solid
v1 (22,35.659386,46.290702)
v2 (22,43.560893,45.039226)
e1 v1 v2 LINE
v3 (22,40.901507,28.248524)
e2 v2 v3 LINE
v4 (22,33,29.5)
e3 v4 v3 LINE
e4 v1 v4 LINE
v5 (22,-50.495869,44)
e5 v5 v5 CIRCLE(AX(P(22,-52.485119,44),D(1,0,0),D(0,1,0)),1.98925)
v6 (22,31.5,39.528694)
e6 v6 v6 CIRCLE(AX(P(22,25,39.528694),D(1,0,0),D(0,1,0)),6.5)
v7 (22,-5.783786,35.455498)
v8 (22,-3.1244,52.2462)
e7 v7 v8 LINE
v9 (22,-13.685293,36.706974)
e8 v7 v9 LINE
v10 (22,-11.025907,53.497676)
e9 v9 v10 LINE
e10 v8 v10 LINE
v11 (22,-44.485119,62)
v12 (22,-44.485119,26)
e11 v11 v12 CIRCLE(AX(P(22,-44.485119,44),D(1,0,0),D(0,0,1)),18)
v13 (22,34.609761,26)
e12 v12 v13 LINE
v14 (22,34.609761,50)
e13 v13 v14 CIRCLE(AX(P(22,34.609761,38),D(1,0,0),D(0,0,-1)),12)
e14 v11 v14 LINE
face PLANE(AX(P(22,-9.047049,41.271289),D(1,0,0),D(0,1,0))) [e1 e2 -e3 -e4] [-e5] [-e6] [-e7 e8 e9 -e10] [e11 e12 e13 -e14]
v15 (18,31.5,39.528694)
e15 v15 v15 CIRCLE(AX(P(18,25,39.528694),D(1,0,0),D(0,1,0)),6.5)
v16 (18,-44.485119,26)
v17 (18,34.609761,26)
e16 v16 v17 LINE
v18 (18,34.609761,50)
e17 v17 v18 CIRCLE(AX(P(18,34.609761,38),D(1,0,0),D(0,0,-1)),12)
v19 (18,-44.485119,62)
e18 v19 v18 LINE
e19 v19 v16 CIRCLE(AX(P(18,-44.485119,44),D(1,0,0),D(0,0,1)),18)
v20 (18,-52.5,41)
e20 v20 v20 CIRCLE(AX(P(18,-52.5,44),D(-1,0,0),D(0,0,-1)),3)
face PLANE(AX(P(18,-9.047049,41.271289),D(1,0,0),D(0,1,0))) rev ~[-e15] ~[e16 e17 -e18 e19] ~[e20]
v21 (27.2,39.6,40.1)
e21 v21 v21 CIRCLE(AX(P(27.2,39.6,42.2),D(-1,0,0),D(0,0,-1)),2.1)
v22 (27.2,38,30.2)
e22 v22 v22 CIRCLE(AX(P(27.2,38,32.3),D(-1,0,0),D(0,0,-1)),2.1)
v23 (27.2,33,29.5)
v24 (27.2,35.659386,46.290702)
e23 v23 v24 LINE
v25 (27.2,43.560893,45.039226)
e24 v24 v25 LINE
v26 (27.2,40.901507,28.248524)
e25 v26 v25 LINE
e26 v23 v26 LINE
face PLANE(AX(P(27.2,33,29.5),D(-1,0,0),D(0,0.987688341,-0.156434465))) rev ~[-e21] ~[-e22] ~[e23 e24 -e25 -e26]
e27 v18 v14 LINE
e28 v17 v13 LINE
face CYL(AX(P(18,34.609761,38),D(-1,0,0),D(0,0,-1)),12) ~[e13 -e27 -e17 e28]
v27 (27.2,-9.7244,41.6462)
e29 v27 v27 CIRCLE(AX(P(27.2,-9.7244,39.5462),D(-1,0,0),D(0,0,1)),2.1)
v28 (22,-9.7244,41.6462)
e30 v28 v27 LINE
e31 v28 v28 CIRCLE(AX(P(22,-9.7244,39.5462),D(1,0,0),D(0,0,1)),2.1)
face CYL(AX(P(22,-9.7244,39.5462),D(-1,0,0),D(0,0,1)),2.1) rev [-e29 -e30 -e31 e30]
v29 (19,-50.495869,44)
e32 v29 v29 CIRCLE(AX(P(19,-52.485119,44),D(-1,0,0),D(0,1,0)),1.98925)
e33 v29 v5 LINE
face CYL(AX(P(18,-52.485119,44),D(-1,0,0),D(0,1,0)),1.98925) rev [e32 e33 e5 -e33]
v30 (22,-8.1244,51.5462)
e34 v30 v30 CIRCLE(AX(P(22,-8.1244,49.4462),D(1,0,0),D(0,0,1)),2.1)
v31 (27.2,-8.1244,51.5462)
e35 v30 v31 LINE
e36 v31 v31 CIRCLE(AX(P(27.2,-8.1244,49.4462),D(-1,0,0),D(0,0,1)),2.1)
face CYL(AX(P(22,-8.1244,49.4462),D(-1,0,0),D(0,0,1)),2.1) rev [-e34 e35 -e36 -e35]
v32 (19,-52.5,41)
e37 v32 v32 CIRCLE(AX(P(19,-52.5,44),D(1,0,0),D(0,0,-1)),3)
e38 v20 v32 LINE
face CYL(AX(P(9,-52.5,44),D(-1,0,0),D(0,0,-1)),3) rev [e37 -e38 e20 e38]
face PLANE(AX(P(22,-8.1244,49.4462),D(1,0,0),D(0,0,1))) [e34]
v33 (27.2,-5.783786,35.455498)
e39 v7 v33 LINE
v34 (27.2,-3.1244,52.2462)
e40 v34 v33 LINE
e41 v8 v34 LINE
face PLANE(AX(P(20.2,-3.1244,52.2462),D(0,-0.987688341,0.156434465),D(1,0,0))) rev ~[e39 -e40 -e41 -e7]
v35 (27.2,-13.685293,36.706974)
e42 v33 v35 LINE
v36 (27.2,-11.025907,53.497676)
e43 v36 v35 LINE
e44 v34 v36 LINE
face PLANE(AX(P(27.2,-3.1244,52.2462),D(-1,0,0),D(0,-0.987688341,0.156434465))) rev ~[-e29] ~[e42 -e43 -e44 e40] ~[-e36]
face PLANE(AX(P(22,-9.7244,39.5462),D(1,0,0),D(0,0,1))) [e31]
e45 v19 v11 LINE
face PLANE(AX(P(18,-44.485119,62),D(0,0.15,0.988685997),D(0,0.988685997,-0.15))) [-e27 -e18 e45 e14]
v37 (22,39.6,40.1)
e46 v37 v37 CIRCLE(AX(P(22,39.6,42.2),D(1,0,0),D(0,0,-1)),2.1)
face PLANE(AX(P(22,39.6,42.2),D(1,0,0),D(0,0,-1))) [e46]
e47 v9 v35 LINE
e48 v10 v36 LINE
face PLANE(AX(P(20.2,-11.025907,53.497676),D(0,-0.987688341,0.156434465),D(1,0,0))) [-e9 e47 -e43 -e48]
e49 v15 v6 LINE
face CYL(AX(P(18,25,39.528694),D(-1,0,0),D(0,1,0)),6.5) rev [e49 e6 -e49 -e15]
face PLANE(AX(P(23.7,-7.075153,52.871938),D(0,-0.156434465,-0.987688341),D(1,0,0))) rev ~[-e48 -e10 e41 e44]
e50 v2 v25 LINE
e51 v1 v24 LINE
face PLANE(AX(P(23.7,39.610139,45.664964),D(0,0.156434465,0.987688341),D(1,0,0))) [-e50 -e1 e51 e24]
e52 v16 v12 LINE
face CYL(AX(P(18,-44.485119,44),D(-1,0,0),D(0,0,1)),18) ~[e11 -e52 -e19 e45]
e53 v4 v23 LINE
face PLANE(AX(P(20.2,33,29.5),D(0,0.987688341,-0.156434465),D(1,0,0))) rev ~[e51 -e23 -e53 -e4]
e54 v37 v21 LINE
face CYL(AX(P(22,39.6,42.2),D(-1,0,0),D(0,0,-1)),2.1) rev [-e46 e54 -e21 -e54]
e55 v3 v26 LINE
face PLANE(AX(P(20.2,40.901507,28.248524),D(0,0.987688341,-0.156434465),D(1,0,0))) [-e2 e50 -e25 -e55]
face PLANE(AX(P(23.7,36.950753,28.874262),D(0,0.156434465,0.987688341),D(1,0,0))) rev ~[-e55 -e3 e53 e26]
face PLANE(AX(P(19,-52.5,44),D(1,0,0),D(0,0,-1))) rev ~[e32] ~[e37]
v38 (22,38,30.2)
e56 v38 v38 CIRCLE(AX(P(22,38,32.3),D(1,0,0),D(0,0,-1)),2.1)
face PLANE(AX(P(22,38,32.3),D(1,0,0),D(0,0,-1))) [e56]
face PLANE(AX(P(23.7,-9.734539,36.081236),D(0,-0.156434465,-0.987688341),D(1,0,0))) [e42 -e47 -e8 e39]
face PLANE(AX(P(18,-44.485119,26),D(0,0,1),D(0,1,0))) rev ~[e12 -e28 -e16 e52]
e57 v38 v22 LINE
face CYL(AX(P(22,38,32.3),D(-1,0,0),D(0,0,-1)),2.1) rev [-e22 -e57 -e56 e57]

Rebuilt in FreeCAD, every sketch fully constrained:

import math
import FreeCAD as App
import Part
import Sketcher
from FreeCAD import Vector


def add_polygon(sketch, points):
    """Adds a closed chain of lines whose ends are joined by coincident constraints."""
    first, n = sketch.GeometryCount, len(points)
    for a, b in zip(points, points[1:] + points[:1]):
        sketch.addGeometry(Part.LineSegment(App.Vector(*a, 0), App.Vector(*b, 0)), False)
    for i in range(n):
        sketch.addConstraint(Sketcher.Constraint("Coincident", first + i, 2, first + (i + 1) % n, 1))

doc = App.newDocument("Part")
body = doc.addObject("PartDesign::Body", "Body")

# Sketch on YZ plane
sketch1 = doc.addObject("Sketcher::SketchObject", "Sketch")
body.addObject(sketch1)
sketch1.AttachmentSupport = (doc.YZ_Plane, [""])
sketch1.MapMode = "FlatFace"
sketch1.AttachmentOffset = App.Placement(Vector(0, 0, 9), App.Rotation())
sketch1.addGeometry(Part.Circle(Vector(-52.5, 44, 0), Vector(0, 0, 1), 3), False)
sketch1.addConstraint(Sketcher.Constraint("Diameter", 0, 6.0))
sketch1.addConstraint(Sketcher.Constraint("DistanceY", -1, 1, 0, 3, 44.0))
sketch1.addConstraint(Sketcher.Constraint("DistanceX", 0, 3, -1, 1, 52.5))
pad1 = doc.addObject("PartDesign::Pad", "Pad")
body.addObject(pad1)
pad1.Profile = sketch1
pad1.Length = 10
body2 = doc.addObject("PartDesign::Body", "Body001")

# Sketch on YZ plane
sketch2 = doc.addObject("Sketcher::SketchObject", "Sketch001")
body2.addObject(sketch2)
sketch2.AttachmentSupport = (doc.getObject("YZ_Plane001"), [""])
sketch2.MapMode = "FlatFace"
sketch2.AttachmentOffset = App.Placement(Vector(0, 0, 23), App.Rotation())
sketch2.addGeometry(Part.Circle(Vector(39.6, 42.2, 0), Vector(0, 0, 1), 2.1), False)
sketch2.addConstraint(Sketcher.Constraint("Diameter", 0, 4.2))
sketch2.addConstraint(Sketcher.Constraint("DistanceX", -1, 1, 0, 3, 39.6))
sketch2.addConstraint(Sketcher.Constraint("DistanceY", -1, 1, 0, 3, 42.2))
pad2 = doc.addObject("PartDesign::Pad", "Pad001")
body2.addObject(pad2)
pad2.Profile = sketch2
pad2.Length = 10
body3 = doc.addObject("PartDesign::Body", "Body002")
body3.AllowCompound = True

# Sketch on YZ plane
sketch3 = doc.addObject("Sketcher::SketchObject", "Sketch002")
body3.addObject(sketch3)
sketch3.AttachmentSupport = (doc.getObject("YZ_Plane002"), [""])
sketch3.MapMode = "FlatFace"
sketch3.AttachmentOffset = App.Placement(Vector(0, 0, 23), App.Rotation())
sketch3.addGeometry(Part.Circle(Vector(38, 32.3, 0), Vector(0, 0, 1), 2.1), False)
sketch3.addConstraint(Sketcher.Constraint("Diameter", 0, 4.2))
sketch3.addConstraint(Sketcher.Constraint("DistanceX", -1, 1, 0, 3, 38.0))
sketch3.addConstraint(Sketcher.Constraint("DistanceY", -1, 1, 0, 3, 32.3))
pad3 = doc.addObject("PartDesign::Pad", "Pad002")
body3.addObject(pad3)
pad3.Profile = sketch3
pad3.Length = 10
doc.recompute()

boolean = doc.addObject("PartDesign::Boolean", "Boolean")
body3.addObject(boolean)
boolean.Type = "Fuse"
boolean.addObjects([body2])
body4 = doc.addObject("PartDesign::Body", "Body003")
body4.AllowCompound = True
doc.recompute()

body3.Placement = App.Placement(Vector(-1, 0, 0), App.Rotation(Vector(0, 0, 1), 0))
boolean2 = doc.addObject("PartDesign::Boolean", "Boolean001")
body4.addObject(boolean2)
boolean2.Type = "Fuse"
boolean2.addObjects([body3])
body5 = doc.addObject("PartDesign::Body", "Body004")

# Sketch on XY plane
sketch4 = doc.addObject("Sketcher::SketchObject", "Sketch003")
body5.addObject(sketch4)
sketch4.AttachmentSupport = (doc.getObject("XY_Plane004"), [""])
sketch4.MapMode = "FlatFace"
add_polygon(sketch4, [(0, 8), (0, 0), (7, 0), (7, 8)])  # lines 0-3
sketch4.addConstraint(Sketcher.Constraint("Vertical", 0))
sketch4.addConstraint(Sketcher.Constraint("Horizontal", 1))
sketch4.addConstraint(Sketcher.Constraint("Vertical", 2))
sketch4.addConstraint(Sketcher.Constraint("Horizontal", 3))
sketch4.addConstraint(Sketcher.Constraint("Coincident", 0, 2, -1, 1))
sketch4.addConstraint(Sketcher.Constraint("DistanceX", 1, 1, 1, 2, 7.0))
sketch4.addConstraint(Sketcher.Constraint("DistanceY", 0, 2, 0, 1, 8.0))
pad4 = doc.addObject("PartDesign::Pad", "Pad003")
body5.addObject(pad4)
pad4.Profile = sketch4
pad4.Length = 17
body6 = doc.addObject("PartDesign::Body", "Body005")
doc.recompute()

body5.Placement = App.Placement(Vector(20.2, 33, 29.5), App.Rotation(Vector(-1, 0, 0), 9))
boolean3 = doc.addObject("PartDesign::Boolean", "Boolean002")
body6.addObject(boolean3)
boolean3.Type = "Fuse"
boolean3.addObjects([body5])
doc.recompute()

boolean4 = doc.addObject("PartDesign::Boolean", "Boolean003")
body6.addObject(boolean4)
boolean4.Type = "Cut"
boolean4.addObjects([body4])
body7 = doc.addObject("PartDesign::Body", "Body006")

# Sketch on YZ plane
sketch5 = doc.addObject("Sketcher::SketchObject", "Sketch004")
body7.addObject(sketch5)
sketch5.AttachmentSupport = (doc.getObject("YZ_Plane006"), [""])
sketch5.MapMode = "FlatFace"
sketch5.addGeometry(Part.LineSegment(Vector(-19.5, 0, 0), Vector(59.6, 0, 0)), False)
sketch5.addGeometry(Part.ArcOfCircle(Part.Circle(Vector(59.6, 12, 0), Vector(0, 0, 1), 12), math.radians(-90), math.radians(90)), False)
sketch5.addGeometry(Part.LineSegment(Vector(59.6, 24, 0), Vector(-19.5, 36, 0)), False)
sketch5.addGeometry(Part.ArcOfCircle(Part.Circle(Vector(-19.5, 18, 0), Vector(0, 0, 1), 18), math.radians(90), math.radians(270)), False)
sketch5.addGeometry(Part.Circle(Vector(-27.5, 18, 0), Vector(0, 0, 1), 2), False)
sketch5.addGeometry(Part.Circle(Vector(50, 13.5, 0), Vector(0, 0, 1), 6.5), False)
sketch5.addConstraint(Sketcher.Constraint("Tangent", 0, 2, 1, 1))
sketch5.addConstraint(Sketcher.Constraint("Coincident", 1, 2, 2, 1))
sketch5.addConstraint(Sketcher.Constraint("Coincident", 2, 2, 3, 1))
sketch5.addConstraint(Sketcher.Constraint("Tangent", 3, 2, 0, 1))
sketch5.addConstraint(Sketcher.Constraint("Horizontal", 0))
sketch5.addConstraint(Sketcher.Constraint("PointOnObject", 0, 2, -1))
sketch5.addConstraint(Sketcher.Constraint("Horizontal", 3, 3, 4, 3))
sketch5.addConstraint(Sketcher.Constraint("Vertical", 0, 2, 1, 2))
sketch5.addConstraint(Sketcher.Constraint("Vertical", 3, 3, 2, 2))
sketch5.addConstraint(Sketcher.Constraint("Diameter", 5, 13.0))
sketch5.addConstraint(Sketcher.Constraint("Radius", 1, 12.0))
sketch5.addConstraint(Sketcher.Constraint("Radius", 3, 18.0))
sketch5.addConstraint(Sketcher.Constraint("Distance", 2, 80.0))
sketch5.addConstraint(Sketcher.Constraint("DistanceX", -1, 1, 5, 3, 50.0))
sketch5.addConstraint(Sketcher.Constraint("DistanceX", 4, 3, 3, 3, 8.0))
sketch5.addConstraint(Sketcher.Constraint("Diameter", 4, 3.9785))
sketch5.addConstraint(Sketcher.Constraint("DistanceX", -1, 1, 1, 3, 59.609761))
sketch5.addConstraint(Sketcher.Constraint("DistanceY", -1, 1, 5, 3, 13.528694))
pad5 = doc.addObject("PartDesign::Pad", "Pad004")
body7.addObject(pad5)
pad5.Profile = sketch5
pad5.Length = 4
body8 = doc.addObject("PartDesign::Body", "Body007")
doc.recompute()

body7.Placement = App.Placement(Vector(18, -25, 26), App.Rotation(Vector(0, 0, 1), 0))
boolean5 = doc.addObject("PartDesign::Boolean", "Boolean004")
body8.addObject(boolean5)
boolean5.Type = "Fuse"
boolean5.addObjects([body7])
body9 = doc.addObject("PartDesign::Body", "Body008")

# Sketch on YZ plane
sketch6 = doc.addObject("Sketcher::SketchObject", "Sketch005")
body9.addObject(sketch6)
sketch6.AttachmentSupport = (doc.getObject("YZ_Plane008"), [""])
sketch6.MapMode = "FlatFace"
sketch6.AttachmentOffset = App.Placement(Vector(0, 0, 23), App.Rotation())
sketch6.addGeometry(Part.Circle(Vector(39.6, 42.2, 0), Vector(0, 0, 1), 2.1), False)
sketch6.addConstraint(Sketcher.Constraint("Diameter", 0, 4.2))
sketch6.addConstraint(Sketcher.Constraint("DistanceX", -1, 1, 0, 3, 39.6))
sketch6.addConstraint(Sketcher.Constraint("DistanceY", -1, 1, 0, 3, 42.2))
pad6 = doc.addObject("PartDesign::Pad", "Pad005")
body9.addObject(pad6)
pad6.Profile = sketch6
pad6.Length = 10
body10 = doc.addObject("PartDesign::Body", "Body009")
body10.AllowCompound = True

# Sketch on YZ plane
sketch7 = doc.addObject("Sketcher::SketchObject", "Sketch006")
body10.addObject(sketch7)
sketch7.AttachmentSupport = (doc.getObject("YZ_Plane009"), [""])
sketch7.MapMode = "FlatFace"
sketch7.AttachmentOffset = App.Placement(Vector(0, 0, 23), App.Rotation())
sketch7.addGeometry(Part.Circle(Vector(38, 32.3, 0), Vector(0, 0, 1), 2.1), False)
sketch7.addConstraint(Sketcher.Constraint("Diameter", 0, 4.2))
sketch7.addConstraint(Sketcher.Constraint("DistanceX", -1, 1, 0, 3, 38.0))
sketch7.addConstraint(Sketcher.Constraint("DistanceY", -1, 1, 0, 3, 32.3))
pad7 = doc.addObject("PartDesign::Pad", "Pad006")
body10.addObject(pad7)
pad7.Profile = sketch7
pad7.Length = 10
doc.recompute()

boolean6 = doc.addObject("PartDesign::Boolean", "Boolean005")
body10.addObject(boolean6)
boolean6.Type = "Fuse"
boolean6.addObjects([body9])
body11 = doc.addObject("PartDesign::Body", "Body010")
body11.AllowCompound = True
doc.recompute()

body10.Placement = App.Placement(Vector(-1, 0, 0), App.Rotation(Vector(0, 0, 1), 0))
boolean7 = doc.addObject("PartDesign::Boolean", "Boolean006")
body11.addObject(boolean7)
boolean7.Type = "Fuse"
boolean7.addObjects([body10])
body12 = doc.addObject("PartDesign::Body", "Body011")

# Sketch on XY plane
sketch8 = doc.addObject("Sketcher::SketchObject", "Sketch007")
body12.addObject(sketch8)
sketch8.AttachmentSupport = (doc.getObject("XY_Plane011"), [""])
sketch8.MapMode = "FlatFace"
add_polygon(sketch8, [(0, 8), (0, 0), (7, 0), (7, 8)])  # lines 0-3
sketch8.addConstraint(Sketcher.Constraint("Vertical", 0))
sketch8.addConstraint(Sketcher.Constraint("Horizontal", 1))
sketch8.addConstraint(Sketcher.Constraint("Vertical", 2))
sketch8.addConstraint(Sketcher.Constraint("Horizontal", 3))
sketch8.addConstraint(Sketcher.Constraint("Coincident", 0, 2, -1, 1))
sketch8.addConstraint(Sketcher.Constraint("DistanceX", 1, 1, 1, 2, 7.0))
sketch8.addConstraint(Sketcher.Constraint("DistanceY", 0, 2, 0, 1, 8.0))
pad8 = doc.addObject("PartDesign::Pad", "Pad007")
body12.addObject(pad8)
pad8.Profile = sketch8
pad8.Length = 17
body13 = doc.addObject("PartDesign::Body", "Body012")
doc.recompute()

body12.Placement = App.Placement(Vector(20.2, 33, 29.5), App.Rotation(Vector(-1, 0, 0), 9))
boolean8 = doc.addObject("PartDesign::Boolean", "Boolean007")
body13.addObject(boolean8)
boolean8.Type = "Fuse"
boolean8.addObjects([body12])
doc.recompute()

boolean9 = doc.addObject("PartDesign::Boolean", "Boolean008")
body13.addObject(boolean9)
boolean9.Type = "Cut"
boolean9.addObjects([body11])
body14 = doc.addObject("PartDesign::Body", "Body013")
body14.AllowCompound = True
doc.recompute()

body13.Placement = App.Placement(Vector(0, 29.8756, 81.7462), App.Rotation(Vector(1, 0, 0), 180))
boolean10 = doc.addObject("PartDesign::Boolean", "Boolean009")
body14.addObject(boolean10)
boolean10.Type = "Fuse"
boolean10.addObjects([body13])
doc.recompute()

boolean11 = doc.addObject("PartDesign::Boolean", "Boolean010")
body14.addObject(boolean11)
boolean11.Type = "Fuse"
boolean11.addObjects([body6])
doc.recompute()

boolean12 = doc.addObject("PartDesign::Boolean", "Boolean011")
body14.addObject(boolean12)
boolean12.Type = "Fuse"
boolean12.addObjects([body8])
doc.recompute()

boolean13 = doc.addObject("PartDesign::Boolean", "Boolean012")
body14.addObject(boolean13)
boolean13.Type = "Cut"
boolean13.addObjects([body])

doc.recompute()
